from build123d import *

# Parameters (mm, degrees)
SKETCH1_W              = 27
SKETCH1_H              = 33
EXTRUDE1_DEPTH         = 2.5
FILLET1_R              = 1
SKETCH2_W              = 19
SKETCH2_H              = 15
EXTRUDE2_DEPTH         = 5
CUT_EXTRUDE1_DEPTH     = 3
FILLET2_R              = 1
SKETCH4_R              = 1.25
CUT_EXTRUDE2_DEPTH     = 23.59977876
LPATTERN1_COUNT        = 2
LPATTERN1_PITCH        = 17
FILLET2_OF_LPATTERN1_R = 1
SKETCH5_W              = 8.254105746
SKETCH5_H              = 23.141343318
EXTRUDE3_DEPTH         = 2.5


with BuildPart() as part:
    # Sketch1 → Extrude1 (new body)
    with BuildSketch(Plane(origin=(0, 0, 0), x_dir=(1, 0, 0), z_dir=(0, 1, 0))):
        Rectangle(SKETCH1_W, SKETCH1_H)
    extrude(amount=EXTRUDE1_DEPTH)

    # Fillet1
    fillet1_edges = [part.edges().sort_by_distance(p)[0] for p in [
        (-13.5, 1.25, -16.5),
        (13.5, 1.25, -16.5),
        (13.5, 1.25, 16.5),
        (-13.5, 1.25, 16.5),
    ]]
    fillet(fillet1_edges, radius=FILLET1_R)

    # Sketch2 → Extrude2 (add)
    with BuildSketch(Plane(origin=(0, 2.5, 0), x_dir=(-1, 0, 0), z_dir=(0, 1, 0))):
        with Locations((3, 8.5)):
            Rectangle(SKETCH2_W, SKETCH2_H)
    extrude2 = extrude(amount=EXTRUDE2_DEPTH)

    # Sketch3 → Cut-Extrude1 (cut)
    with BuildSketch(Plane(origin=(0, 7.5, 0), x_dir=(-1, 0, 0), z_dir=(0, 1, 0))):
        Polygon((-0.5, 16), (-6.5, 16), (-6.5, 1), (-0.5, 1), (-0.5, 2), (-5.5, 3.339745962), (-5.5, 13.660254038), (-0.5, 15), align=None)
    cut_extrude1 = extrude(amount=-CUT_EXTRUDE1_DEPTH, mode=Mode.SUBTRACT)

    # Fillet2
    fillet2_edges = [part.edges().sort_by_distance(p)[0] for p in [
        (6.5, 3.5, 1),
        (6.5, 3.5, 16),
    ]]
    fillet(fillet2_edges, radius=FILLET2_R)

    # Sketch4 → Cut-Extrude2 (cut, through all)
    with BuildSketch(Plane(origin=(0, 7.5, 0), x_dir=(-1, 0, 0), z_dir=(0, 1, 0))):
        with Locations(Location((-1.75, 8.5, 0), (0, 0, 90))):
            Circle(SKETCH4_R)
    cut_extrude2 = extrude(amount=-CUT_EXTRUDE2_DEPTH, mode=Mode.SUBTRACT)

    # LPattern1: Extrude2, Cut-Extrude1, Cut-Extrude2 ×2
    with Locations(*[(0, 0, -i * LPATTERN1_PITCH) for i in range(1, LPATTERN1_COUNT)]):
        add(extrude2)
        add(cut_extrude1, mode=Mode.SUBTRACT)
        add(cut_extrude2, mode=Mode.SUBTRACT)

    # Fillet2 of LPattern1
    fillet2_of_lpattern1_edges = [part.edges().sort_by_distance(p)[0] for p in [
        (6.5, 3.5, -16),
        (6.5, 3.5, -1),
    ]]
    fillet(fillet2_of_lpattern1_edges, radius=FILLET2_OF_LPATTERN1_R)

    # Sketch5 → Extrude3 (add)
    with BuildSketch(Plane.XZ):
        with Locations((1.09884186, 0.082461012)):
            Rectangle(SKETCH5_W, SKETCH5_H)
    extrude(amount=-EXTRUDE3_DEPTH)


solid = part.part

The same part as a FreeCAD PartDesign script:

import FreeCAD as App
import Part
import Sketcher
Q = App.Units.Quantity


def edges_at(feature, points):
    """Names of the edges that pass closest to the given points."""
    edges = feature.Shape.Edges
    near = lambda p: min(range(len(edges)), key=lambda i: edges[i].distToShape(Part.Vertex(*p))[0])
    return sorted({f"Edge{near(p) + 1}" for p in points})

doc = App.newDocument("Part")
body = doc.addObject("PartDesign::Body", "Body")

# Sketch on XZ plane
sketch1 = doc.addObject("Sketcher::SketchObject", "Sketch")
body.addObject(sketch1)
sketch1.AttachmentSupport = (doc.XZ_Plane, [""])
sketch1.MapMode = "FlatFace"
sketch1.addGeometry(Part.LineSegment(App.Vector(-14, -16, 0), App.Vector(-14, 16, 0)), False)
sketch1.addGeometry(Part.LineSegment(App.Vector(-14, 16, 0), App.Vector(14, 16, 0)), False)
sketch1.addGeometry(Part.LineSegment(App.Vector(14, 16, 0), App.Vector(14, -16, 0)), False)
sketch1.addGeometry(Part.LineSegment(App.Vector(14, -16, 0), App.Vector(-14, -16, 0)), False)
sketch1.addConstraint(Sketcher.Constraint("Coincident", 0, 2, 1, 1))
sketch1.addConstraint(Sketcher.Constraint("Coincident", 1, 2, 2, 1))
sketch1.addConstraint(Sketcher.Constraint("Coincident", 2, 2, 3, 1))
sketch1.addConstraint(Sketcher.Constraint("Coincident", 3, 2, 0, 1))
sketch1.addConstraint(Sketcher.Constraint("Vertical", 0))
sketch1.addConstraint(Sketcher.Constraint("Horizontal", 1))
sketch1.addConstraint(Sketcher.Constraint("Vertical", 2))
sketch1.addConstraint(Sketcher.Constraint("Horizontal", 3))
sketch1.addConstraint(Sketcher.Constraint("Symmetric", 0, 2, 2, 2, -1, 1))
sketch1.addConstraint(Sketcher.Constraint("DistanceX", 1, 1, 1, 2, Q("27 mm")))
sketch1.addConstraint(Sketcher.Constraint("DistanceY", 0, 1, 0, 2, Q("33 mm")))
pad1 = doc.addObject("PartDesign::Pad", "Pad")
body.addObject(pad1)
pad1.Profile = sketch1
pad1.Length = 2.5
pad1.Reversed = True
doc.recompute()

fillet = doc.addObject("PartDesign::Fillet", "Fillet")
body.addObject(fillet)
fillet.Base = (pad1, edges_at(pad1, [
    (-13.5, 1.25, -16.5),
    (13.5, 1.25, -16.5),
    (13.5, 1.25, 16.5),
    (-13.5, 1.25, 16.5),
]))
fillet.Radius = 1

# Sketch on XZ plane
sketch2 = doc.addObject("Sketcher::SketchObject", "Sketch001")
body.addObject(sketch2)
sketch2.AttachmentSupport = (doc.XZ_Plane, [""])
sketch2.MapMode = "FlatFace"
sketch2.AttachmentOffset = App.Placement(App.Vector(0, 0, -2.5), App.Rotation())
sketch2.addGeometry(Part.LineSegment(App.Vector(6, 16, 0), App.Vector(6, 1, 0)), False)
sketch2.addGeometry(Part.LineSegment(App.Vector(6, 1, 0), App.Vector(-12, 1, 0)), False)
sketch2.addGeometry(Part.LineSegment(App.Vector(-12, 1, 0), App.Vector(-12, 16, 0)), False)
sketch2.addGeometry(Part.LineSegment(App.Vector(-12, 16, 0), App.Vector(6, 16, 0)), False)
sketch2.addConstraint(Sketcher.Constraint("Coincident", 0, 2, 1, 1))
sketch2.addConstraint(Sketcher.Constraint("Coincident", 1, 2, 2, 1))
sketch2.addConstraint(Sketcher.Constraint("Coincident", 2, 2, 3, 1))
sketch2.addConstraint(Sketcher.Constraint("Coincident", 3, 2, 0, 1))
sketch2.addConstraint(Sketcher.Constraint("Vertical", 0))
sketch2.addConstraint(Sketcher.Constraint("Horizontal", 1))
sketch2.addConstraint(Sketcher.Constraint("Vertical", 2))
sketch2.addConstraint(Sketcher.Constraint("Horizontal", 3))
sketch2.addConstraint(Sketcher.Constraint("DistanceX", 1, 2, 1, 1, Q("19 mm")))
sketch2.addConstraint(Sketcher.Constraint("DistanceY", 0, 2, 0, 1, Q("15 mm")))
sketch2.addConstraint(Sketcher.Constraint("DistanceY", -1, 1, 0, 2, Q("1 mm")))
sketch2.addConstraint(Sketcher.Constraint("DistanceX", -1, 1, 0, 2, Q("6.5 mm")))
pad2 = doc.addObject("PartDesign::Pad", "Pad001")
body.addObject(pad2)
pad2.Profile = sketch2
pad2.Length = 5
pad2.Reversed = True

# Sketch on XZ plane
sketch3 = doc.addObject("Sketcher::SketchObject", "Sketch002")
body.addObject(sketch3)
sketch3.AttachmentSupport = (doc.XZ_Plane, [""])
sketch3.MapMode = "FlatFace"
sketch3.AttachmentOffset = App.Placement(App.Vector(0, 0, -7.5), App.Rotation())
sketch3.addGeometry(Part.LineSegment(App.Vector(0.5, 16, 0), App.Vector(6.5, 16, 0)), False)
sketch3.addGeometry(Part.LineSegment(App.Vector(6.5, 16, 0), App.Vector(6.5, 1, 0)), False)
sketch3.addGeometry(Part.LineSegment(App.Vector(6.5, 1, 0), App.Vector(0.5, 1, 0)), False)
sketch3.addGeometry(Part.LineSegment(App.Vector(0.5, 1, 0), App.Vector(0.5, 2, 0)), False)
sketch3.addGeometry(Part.LineSegment(App.Vector(0.5, 2, 0), App.Vector(5.5, 3.3, 0)), False)
sketch3.addGeometry(Part.LineSegment(App.Vector(5.5, 3.3, 0), App.Vector(5.5, 13.7, 0)), False)
sketch3.addGeometry(Part.LineSegment(App.Vector(5.5, 13.7, 0), App.Vector(0.5, 15, 0)), False)
sketch3.addGeometry(Part.LineSegment(App.Vector(0.5, 15, 0), App.Vector(0.5, 16, 0)), False)
sketch3.addConstraint(Sketcher.Constraint("Coincident", 0, 2, 1, 1))
sketch3.addConstraint(Sketcher.Constraint("Coincident", 1, 2, 2, 1))
sketch3.addConstraint(Sketcher.Constraint("Coincident", 2, 2, 3, 1))
sketch3.addConstraint(Sketcher.Constraint("Coincident", 3, 2, 4, 1))
sketch3.addConstraint(Sketcher.Constraint("Coincident", 4, 2, 5, 1))
sketch3.addConstraint(Sketcher.Constraint("Coincident", 5, 2, 6, 1))
sketch3.addConstraint(Sketcher.Constraint("Coincident", 6, 2, 7, 1))
sketch3.addConstraint(Sketcher.Constraint("Coincident", 7, 2, 0, 1))
sketch3.addConstraint(Sketcher.Constraint("Horizontal", 0))
sketch3.addConstraint(Sketcher.Constraint("Vertical", 1))
sketch3.addConstraint(Sketcher.Constraint("Horizontal", 2))
sketch3.addConstraint(Sketcher.Constraint("Vertical", 3))
sketch3.addConstraint(Sketcher.Constraint("Vertical", 5))
sketch3.addConstraint(Sketcher.Constraint("Vertical", 7))
sketch3.addConstraint(Sketcher.Constraint("Vertical", 3, 2, 6, 2))
sketch3.addConstraint(Sketcher.Constraint("Equal", 3, 7))
sketch3.addConstraint(Sketcher.Constraint("Equal", 4, 6))
sketch3.addConstraint(Sketcher.Constraint("DistanceX", 0, 1, 0, 2, Q("6 mm")))
sketch3.addConstraint(Sketcher.Constraint("DistanceY", 1, 2, 1, 1, Q("15 mm")))
sketch3.addConstraint(Sketcher.Constraint("DistanceY", 3, 1, 3, 2, Q("1 mm")))
sketch3.addConstraint(Sketcher.Constraint("Angle", 4, Q("15 deg")))
sketch3.addConstraint(Sketcher.Constraint("DistanceY", -1, 1, 0, 2, Q("16 mm")))
sketch3.addConstraint(Sketcher.Constraint("DistanceX", 4, 2, 1, 2, Q("1 mm")))
sketch3.addConstraint(Sketcher.Constraint("DistanceX", -1, 1, 0, 2, Q("6.5 mm")))
pocket1 = doc.addObject("PartDesign::Pocket", "Pocket")
body.addObject(pocket1)
pocket1.Profile = sketch3
pocket1.Length = 3
pocket1.Reversed = True
doc.recompute()

fillet2 = doc.addObject("PartDesign::Fillet", "Fillet001")
body.addObject(fillet2)
fillet2.Base = (pocket1, edges_at(pocket1, [(6.5, 3.5, 1), (6.5, 3.5, 16)]))
fillet2.Radius = 1

# Sketch on XZ plane
sketch4 = doc.addObject("Sketcher::SketchObject", "Sketch003")
body.addObject(sketch4)
sketch4.AttachmentSupport = (doc.XZ_Plane, [""])
sketch4.MapMode = "FlatFace"
sketch4.AttachmentOffset = App.Placement(App.Vector(0, 0, -7.5), App.Rotation())
sketch4.addGeometry(Part.Circle(App.Vector(1.8, 8.5, 0), App.Vector(0, 0, 1), 1.2), False)
sketch4.addConstraint(Sketcher.Constraint("Diameter", 0, Q("2.5 mm")))
sketch4.addConstraint(Sketcher.Constraint("DistanceY", -1, 1, 0, 3, Q("8.5 mm")))
sketch4.addConstraint(Sketcher.Constraint("DistanceX", -1, 1, 0, 3, Q("1.75 mm")))
pocket2 = doc.addObject("PartDesign::Pocket", "Pocket001")
body.addObject(pocket2)
pocket2.Profile = sketch4
pocket2.Type = "ThroughAll"
pocket2.Reversed = True
doc.recompute()

linearpattern = doc.addObject("PartDesign::LinearPattern", "LinearPattern")
body.addObject(linearpattern)
linearpattern.Originals = [pad2, pocket1, pocket2]
linearpattern.Direction = (doc.Z_Axis, [""])
linearpattern.Mode = "offset"
linearpattern.Offset = 17
linearpattern.Occurrences = 2
linearpattern.Reversed = True
body.Tip = linearpattern
doc.recompute()

fillet3 = doc.addObject("PartDesign::Fillet", "Fillet002")
body.addObject(fillet3)
fillet3.Base = (linearpattern, edges_at(linearpattern, [(6.5, 3.5, -16), (6.5, 3.5, -1)]))
fillet3.Radius = 1

# Sketch on XZ plane
sketch5 = doc.addObject("Sketcher::SketchObject", "Sketch004")
body.addObject(sketch5)
sketch5.AttachmentSupport = (doc.XZ_Plane, [""])
sketch5.MapMode = "FlatFace"
sketch5.addGeometry(Part.LineSegment(App.Vector(-3, 12, 0), App.Vector(-3, -11, 0)), False)
sketch5.addGeometry(Part.LineSegment(App.Vector(-3, -11, 0), App.Vector(5, -11, 0)), False)
sketch5.addGeometry(Part.LineSegment(App.Vector(5, -11, 0), App.Vector(5, 12, 0)), False)
sketch5.addGeometry(Part.LineSegment(App.Vector(5, 12, 0), App.Vector(-3, 12, 0)), False)
sketch5.addConstraint(Sketcher.Constraint("Coincident", 0, 2, 1, 1))
sketch5.addConstraint(Sketcher.Constraint("Coincident", 1, 2, 2, 1))
sketch5.addConstraint(Sketcher.Constraint("Coincident", 2, 2, 3, 1))
sketch5.addConstraint(Sketcher.Constraint("Coincident", 3, 2, 0, 1))
sketch5.addConstraint(Sketcher.Constraint("Vertical", 0))
sketch5.addConstraint(Sketcher.Constraint("Horizontal", 1))
sketch5.addConstraint(Sketcher.Constraint("Vertical", 2))
sketch5.addConstraint(Sketcher.Constraint("Horizontal", 3))
sketch5.addConstraint(Sketcher.Constraint("DistanceX", 1, 1, 1, 2, Q("8.254106 mm")))
sketch5.addConstraint(Sketcher.Constraint("DistanceY", 0, 2, 0, 1, Q("23.141343 mm")))
sketch5.addConstraint(Sketcher.Constraint("DistanceX", 0, 2, -1, 1, Q("3.028211 mm")))
sketch5.addConstraint(Sketcher.Constraint("DistanceY", 0, 2, -1, 1, Q("11.488211 mm")))
pad3 = doc.addObject("PartDesign::Pad", "Pad002")
body.addObject(pad3)
pad3.Profile = sketch5
pad3.Length = 2.5
pad3.Reversed = True

doc.recompute()
